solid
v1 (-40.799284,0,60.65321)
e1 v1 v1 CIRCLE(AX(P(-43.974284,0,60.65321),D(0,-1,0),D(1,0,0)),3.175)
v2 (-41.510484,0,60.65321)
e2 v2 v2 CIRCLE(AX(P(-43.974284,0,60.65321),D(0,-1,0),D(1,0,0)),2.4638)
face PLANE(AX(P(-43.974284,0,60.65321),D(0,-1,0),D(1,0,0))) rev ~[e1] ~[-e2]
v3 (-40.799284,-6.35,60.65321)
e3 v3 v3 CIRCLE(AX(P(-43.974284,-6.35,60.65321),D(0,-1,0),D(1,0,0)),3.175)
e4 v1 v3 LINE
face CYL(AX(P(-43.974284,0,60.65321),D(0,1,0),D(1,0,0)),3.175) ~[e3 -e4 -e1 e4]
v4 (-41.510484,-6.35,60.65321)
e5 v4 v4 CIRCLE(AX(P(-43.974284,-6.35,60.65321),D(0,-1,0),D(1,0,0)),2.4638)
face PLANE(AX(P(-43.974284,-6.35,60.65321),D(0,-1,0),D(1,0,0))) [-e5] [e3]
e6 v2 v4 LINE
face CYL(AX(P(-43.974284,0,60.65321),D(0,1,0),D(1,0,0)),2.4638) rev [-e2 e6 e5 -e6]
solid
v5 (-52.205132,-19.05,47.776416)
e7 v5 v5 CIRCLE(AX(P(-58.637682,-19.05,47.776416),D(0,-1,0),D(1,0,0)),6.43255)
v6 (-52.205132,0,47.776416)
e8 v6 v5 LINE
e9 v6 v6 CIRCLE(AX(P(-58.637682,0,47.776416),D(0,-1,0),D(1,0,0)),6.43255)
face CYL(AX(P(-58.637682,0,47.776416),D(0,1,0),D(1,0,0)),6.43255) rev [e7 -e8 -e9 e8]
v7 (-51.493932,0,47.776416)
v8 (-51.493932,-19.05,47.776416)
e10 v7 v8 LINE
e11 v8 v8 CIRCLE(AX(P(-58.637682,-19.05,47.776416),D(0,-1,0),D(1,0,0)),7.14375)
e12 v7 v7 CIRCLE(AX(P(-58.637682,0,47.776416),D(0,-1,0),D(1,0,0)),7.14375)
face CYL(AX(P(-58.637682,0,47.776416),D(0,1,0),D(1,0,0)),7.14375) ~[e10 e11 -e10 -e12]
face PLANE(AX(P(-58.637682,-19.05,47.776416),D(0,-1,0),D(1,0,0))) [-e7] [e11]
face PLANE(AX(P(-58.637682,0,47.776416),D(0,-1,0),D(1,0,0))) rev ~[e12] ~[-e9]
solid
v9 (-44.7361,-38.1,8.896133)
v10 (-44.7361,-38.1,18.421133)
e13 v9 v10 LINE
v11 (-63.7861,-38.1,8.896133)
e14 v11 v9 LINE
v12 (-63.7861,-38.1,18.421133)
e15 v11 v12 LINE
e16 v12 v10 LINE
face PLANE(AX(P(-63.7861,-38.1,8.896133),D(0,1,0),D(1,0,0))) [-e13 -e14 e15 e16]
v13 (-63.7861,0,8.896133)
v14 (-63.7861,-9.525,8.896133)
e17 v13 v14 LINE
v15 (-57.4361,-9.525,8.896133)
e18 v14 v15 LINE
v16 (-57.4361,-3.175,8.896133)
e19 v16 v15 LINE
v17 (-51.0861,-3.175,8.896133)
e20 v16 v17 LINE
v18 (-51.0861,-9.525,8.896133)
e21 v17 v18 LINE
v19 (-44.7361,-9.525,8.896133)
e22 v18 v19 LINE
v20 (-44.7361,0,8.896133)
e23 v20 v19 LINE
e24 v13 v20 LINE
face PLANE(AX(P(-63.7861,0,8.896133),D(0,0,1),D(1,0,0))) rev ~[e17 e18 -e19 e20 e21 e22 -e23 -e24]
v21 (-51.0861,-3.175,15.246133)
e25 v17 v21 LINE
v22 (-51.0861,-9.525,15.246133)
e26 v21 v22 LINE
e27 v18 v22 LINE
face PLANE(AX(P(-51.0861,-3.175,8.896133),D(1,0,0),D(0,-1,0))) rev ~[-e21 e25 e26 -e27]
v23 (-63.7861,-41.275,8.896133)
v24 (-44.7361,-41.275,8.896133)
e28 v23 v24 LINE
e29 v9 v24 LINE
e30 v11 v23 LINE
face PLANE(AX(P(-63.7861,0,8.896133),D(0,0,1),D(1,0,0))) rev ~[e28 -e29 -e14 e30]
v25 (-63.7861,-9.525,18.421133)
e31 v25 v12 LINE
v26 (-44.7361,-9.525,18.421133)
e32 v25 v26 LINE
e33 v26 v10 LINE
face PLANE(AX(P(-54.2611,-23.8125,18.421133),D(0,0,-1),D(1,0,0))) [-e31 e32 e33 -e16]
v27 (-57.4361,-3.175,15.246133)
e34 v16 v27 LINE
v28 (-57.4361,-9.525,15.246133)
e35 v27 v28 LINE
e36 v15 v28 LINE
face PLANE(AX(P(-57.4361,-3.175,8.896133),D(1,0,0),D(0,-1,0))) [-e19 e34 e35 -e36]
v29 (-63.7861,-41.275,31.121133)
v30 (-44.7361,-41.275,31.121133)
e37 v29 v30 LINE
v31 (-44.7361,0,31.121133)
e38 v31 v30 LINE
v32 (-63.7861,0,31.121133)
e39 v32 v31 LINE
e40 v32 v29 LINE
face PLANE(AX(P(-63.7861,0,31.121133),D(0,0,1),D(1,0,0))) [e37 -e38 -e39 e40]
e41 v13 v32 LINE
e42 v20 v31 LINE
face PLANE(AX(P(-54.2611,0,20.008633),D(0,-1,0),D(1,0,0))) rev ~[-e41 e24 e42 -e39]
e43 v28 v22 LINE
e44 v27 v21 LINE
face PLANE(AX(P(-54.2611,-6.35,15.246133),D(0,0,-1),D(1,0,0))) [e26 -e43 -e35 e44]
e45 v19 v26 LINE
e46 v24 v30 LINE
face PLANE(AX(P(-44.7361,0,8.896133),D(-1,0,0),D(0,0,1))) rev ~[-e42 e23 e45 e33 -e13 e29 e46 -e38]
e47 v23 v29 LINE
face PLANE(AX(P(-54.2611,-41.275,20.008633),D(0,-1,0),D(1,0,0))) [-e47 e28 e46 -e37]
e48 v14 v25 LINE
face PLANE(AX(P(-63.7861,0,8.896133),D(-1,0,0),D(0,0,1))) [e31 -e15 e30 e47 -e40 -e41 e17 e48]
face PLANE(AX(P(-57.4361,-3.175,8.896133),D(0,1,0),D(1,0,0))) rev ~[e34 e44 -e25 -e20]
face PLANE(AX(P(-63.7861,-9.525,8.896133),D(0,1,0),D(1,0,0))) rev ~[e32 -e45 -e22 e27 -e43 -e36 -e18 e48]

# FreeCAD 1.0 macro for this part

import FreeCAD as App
import Part
import Sketcher

V = App.Vector
Q = App.Units.Quantity

doc = App.newDocument("Part")
body = doc.addObject("PartDesign::Body", "Body")

# Sketch on XZ plane
sketch1 = body.newObject("Sketcher::SketchObject", "Sketch")
sketch1.AttachmentSupport = (doc.getObject("XZ_Plane"), [""])
sketch1.MapMode = "FlatFace"
sketch1.addGeometry([
    Part.Circle(V(-59, 48, 0), V(0, 0, 1), 7),
    Part.Circle(V(-59, 48, 0), V(0, 0, 1), 6),
], False)
sketch1.addConstraint([
    Sketcher.Constraint("Coincident", 1, 3, 0, 3),
    Sketcher.Constraint("Diameter", 0, Q("0.5625 in")),
    Sketcher.Constraint("Diameter", 1, Q("0.5065 in")),
    Sketcher.Constraint("DistanceX", 0, 3, -1, 1, Q("58.637682 mm")),
    Sketcher.Constraint("DistanceY", -1, 1, 0, 3, Q("47.776416 mm")),
])
pad1 = body.newObject("PartDesign::Pad", "Pad")
pad1.Profile = sketch1
pad1.Length = Q("0.75 in")
body2 = doc.addObject("PartDesign::Body", "Body001")

# Sketch on XZ plane
sketch2 = body2.newObject("Sketcher::SketchObject", "Sketch001")
sketch2.AttachmentSupport = (doc.getObject("XZ_Plane001"), [""])
sketch2.MapMode = "FlatFace"
sketch2.addGeometry([
    Part.Circle(V(-44, 60.7, 0), V(0, 0, 1), 3.2),
    Part.Circle(V(-44, 60.7, 0), V(0, 0, 1), 2.5),
], False)
sketch2.addConstraint([
    Sketcher.Constraint("Coincident", 1, 3, 0, 3),
    Sketcher.Constraint("Diameter", 0, Q("0.25 in")),
    Sketcher.Constraint("Diameter", 1, Q("0.194 in")),
    Sketcher.Constraint("DistanceY", -1, 1, 0, 3, Q("60.65321 mm")),
    Sketcher.Constraint("DistanceX", 0, 3, -1, 1, Q("43.974284 mm")),
])
pad2 = body2.newObject("PartDesign::Pad", "Pad001")
pad2.Profile = sketch2
pad2.Length = Q("0.25 in")
body3 = doc.addObject("PartDesign::Body", "Body002")

# Sketch on XZ plane
sketch3 = body3.newObject("Sketcher::SketchObject", "Sketch002")
sketch3.AttachmentSupport = (doc.getObject("XZ_Plane002"), [""])
sketch3.MapMode = "FlatFace"
sketch3.addGeometry([
    Part.LineSegment(V(-64, 31, 0), V(-64, 9, 0)),
    Part.LineSegment(V(-64, 9, 0), V(-45, 9, 0)),
    Part.LineSegment(V(-45, 9, 0), V(-45, 31, 0)),
    Part.LineSegment(V(-45, 31, 0), V(-64, 31, 0)),
], False)
sketch3.addConstraint([
    Sketcher.Constraint("Coincident", 0, 2, 1, 1),
    Sketcher.Constraint("Coincident", 1, 2, 2, 1),
    Sketcher.Constraint("Coincident", 2, 2, 3, 1),
    Sketcher.Constraint("Coincident", 3, 2, 0, 1),
    Sketcher.Constraint("Vertical", 0),
    Sketcher.Constraint("Horizontal", 1),
    Sketcher.Constraint("Vertical", 2),
    Sketcher.Constraint("Horizontal", 3),
    Sketcher.Constraint("DistanceX", 1, 1, 1, 2, Q("0.75 in")),
    Sketcher.Constraint("DistanceY", 0, 2, 0, 1, Q("0.875 in")),
    Sketcher.Constraint("DistanceX", 0, 2, -1, 1, Q("63.7861 mm")),
    Sketcher.Constraint("DistanceY", -1, 1, 0, 2, Q("8.896133 mm")),
])
pad3 = body3.newObject("PartDesign::Pad", "Pad002")
pad3.Profile = sketch3
pad3.Length = Q("1.625 in")

# Sketch on XY plane
sketch4 = body3.newObject("Sketcher::SketchObject", "Sketch003")
sketch4.AttachmentSupport = (doc.getObject("XY_Plane002"), [""])
sketch4.MapMode = "FlatFace"
sketch4.AttachmentOffset = App.Placement(V(0, 0, 8.896133), App.Rotation())
sketch4.addGeometry([
    Part.LineSegment(V(-64, -38, 0), V(-64, -10, 0)),
    Part.LineSegment(V(-64, -10, 0), V(-45, -10, 0)),
    Part.LineSegment(V(-45, -10, 0), V(-45, -38, 0)),
    Part.LineSegment(V(-45, -38, 0), V(-64, -38, 0)),
], False)
sketch4.addConstraint([
    Sketcher.Constraint("Coincident", 0, 2, 1, 1),
    Sketcher.Constraint("Coincident", 1, 2, 2, 1),
    Sketcher.Constraint("Coincident", 2, 2, 3, 1),
    Sketcher.Constraint("Coincident", 3, 2, 0, 1),
    Sketcher.Constraint("Vertical", 0),
    Sketcher.Constraint("Horizontal", 1),
    Sketcher.Constraint("Vertical", 2),
    Sketcher.Constraint("Horizontal", 3),
    Sketcher.Constraint("DistanceX", 1, 1, 1, 2, Q("0.75 in")),
    Sketcher.Constraint("DistanceY", 2, 2, -1, 1, Q("1.5 in")),
    Sketcher.Constraint("DistanceY", 0, 1, 0, 2, Q("1.125 in")),
    Sketcher.Constraint("DistanceX", 0, 2, -1, 1, Q("63.7861 mm")),
])
pocket1 = body3.newObject("PartDesign::Pocket", "Pocket")
pocket1.Profile = sketch4
pocket1.Length = Q("0.375 in")
pocket1.Reversed = True

# Sketch on XY plane
sketch5 = body3.newObject("Sketcher::SketchObject", "Sketch004")
sketch5.AttachmentSupport = (doc.getObject("XY_Plane002"), [""])
sketch5.MapMode = "FlatFace"
sketch5.AttachmentOffset = App.Placement(V(0, 0, 8.896133), App.Rotation())
sketch5.addGeometry([
    Part.LineSegment(V(-57, -10, 0), V(-57, -3, 0)),
    Part.LineSegment(V(-57, -3, 0), V(-51, -3, 0)),
    Part.LineSegment(V(-51, -3, 0), V(-51, -10, 0)),
    Part.LineSegment(V(-51, -10, 0), V(-57, -10, 0)),
], False)
sketch5.addConstraint([
    Sketcher.Constraint("Coincident", 0, 2, 1, 1),
    Sketcher.Constraint("Coincident", 1, 2, 2, 1),
    Sketcher.Constraint("Coincident", 2, 2, 3, 1),
    Sketcher.Constraint("Coincident", 3, 2, 0, 1),
    Sketcher.Constraint("Vertical", 0),
    Sketcher.Constraint("Horizontal", 1),
    Sketcher.Constraint("Vertical", 2),
    Sketcher.Constraint("Horizontal", 3),
    Sketcher.Constraint("Equal", 3, 0),
    Sketcher.Constraint("DistanceX", 1, 1, 1, 2, Q("0.25 in")),
    Sketcher.Constraint("DistanceY", 0, 2, -1, 1, Q("0.125 in")),
    Sketcher.Constraint("DistanceX", 0, 2, -1, 1, Q("57.4361 mm")),
])
pocket2 = body3.newObject("PartDesign::Pocket", "Pocket001")
pocket2.Profile = sketch5
pocket2.Length = Q("0.25 in")
pocket2.Reversed = True

doc.recompute()
